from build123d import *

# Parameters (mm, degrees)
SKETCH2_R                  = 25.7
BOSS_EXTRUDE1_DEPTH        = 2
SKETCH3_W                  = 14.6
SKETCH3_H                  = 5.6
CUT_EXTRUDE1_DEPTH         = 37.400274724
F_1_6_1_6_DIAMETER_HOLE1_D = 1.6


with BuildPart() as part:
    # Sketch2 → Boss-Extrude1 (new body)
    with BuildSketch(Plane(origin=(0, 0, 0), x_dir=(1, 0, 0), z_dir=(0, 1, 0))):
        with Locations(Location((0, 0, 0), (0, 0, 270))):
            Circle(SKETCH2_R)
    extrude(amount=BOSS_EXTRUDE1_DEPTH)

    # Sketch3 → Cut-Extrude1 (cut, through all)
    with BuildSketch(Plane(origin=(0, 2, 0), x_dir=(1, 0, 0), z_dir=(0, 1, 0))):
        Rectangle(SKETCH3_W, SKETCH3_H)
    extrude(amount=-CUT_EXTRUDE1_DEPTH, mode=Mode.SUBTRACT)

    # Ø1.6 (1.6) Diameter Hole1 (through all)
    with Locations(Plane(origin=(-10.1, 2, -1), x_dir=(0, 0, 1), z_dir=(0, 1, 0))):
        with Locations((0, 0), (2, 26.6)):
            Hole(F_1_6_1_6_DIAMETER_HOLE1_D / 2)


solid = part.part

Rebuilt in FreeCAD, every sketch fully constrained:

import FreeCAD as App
import Part
import Sketcher
from FreeCAD import Vector

doc = App.newDocument("Part")
body = doc.addObject("PartDesign::Body", "Body")

sketch1 = body.newObject("Sketcher::SketchObject", "Sketch")
sketch1.AttachmentSupport = (doc.getObject("XZ_Plane"), [""])
sketch1.MapMode = "FlatFace"
sketch1.addGeometry(Part.Circle(Vector(0, 0, 0), Vector(0, 0, 1), 26), False)
sketch1.addConstraint(Sketcher.Constraint("Coincident", 0, 3, -1, 1))
sketch1.addConstraint(Sketcher.Constraint("Diameter", 0, 51.4))
pad1 = body.newObject("PartDesign::Pad", "Pad")
pad1.Profile = sketch1
pad1.Length = 2
pad1.Reversed = True

sketch2 = body.newObject("Sketcher::SketchObject", "Sketch001")
sketch2.AttachmentSupport = (doc.getObject("XZ_Plane"), [""])
sketch2.MapMode = "FlatFace"
sketch2.AttachmentOffset = App.Placement(Vector(0, 0, -2), App.Rotation())
sketch2.addGeometry(Part.LineSegment(Vector(-7, -3, 0), Vector(-7, 3, 0)), False)
sketch2.addGeometry(Part.LineSegment(Vector(-7, 3, 0), Vector(7, 3, 0)), False)
sketch2.addGeometry(Part.LineSegment(Vector(7, 3, 0), Vector(7, -3, 0)), False)
sketch2.addGeometry(Part.LineSegment(Vector(7, -3, 0), Vector(-7, -3, 0)), False)
sketch2.addConstraint(Sketcher.Constraint("Coincident", 0, 2, 1, 1))
sketch2.addConstraint(Sketcher.Constraint("Coincident", 1, 2, 2, 1))
sketch2.addConstraint(Sketcher.Constraint("Coincident", 2, 2, 3, 1))
sketch2.addConstraint(Sketcher.Constraint("Coincident", 3, 2, 0, 1))
sketch2.addConstraint(Sketcher.Constraint("Vertical", 0))
sketch2.addConstraint(Sketcher.Constraint("Horizontal", 1))
sketch2.addConstraint(Sketcher.Constraint("Vertical", 2))
sketch2.addConstraint(Sketcher.Constraint("Horizontal", 3))
sketch2.addConstraint(Sketcher.Constraint("Symmetric", 0, 2, 2, 2, -1, 1))
sketch2.addConstraint(Sketcher.Constraint("DistanceX", 1, 1, 1, 2, 14.6))
sketch2.addConstraint(Sketcher.Constraint("DistanceY", 0, 1, 0, 2, 5.6))
pocket1 = body.newObject("PartDesign::Pocket", "Pocket")
pocket1.Profile = sketch2
pocket1.Type = "ThroughAll"
pocket1.Reversed = True

sketch3 = body.newObject("Sketcher::SketchObject", "Sketch002")
sketch3.AttachmentSupport = (doc.getObject("XZ_Plane"), [""])
sketch3.MapMode = "FlatFace"
sketch3.AttachmentOffset = App.Placement(Vector(0, 0, -2), App.Rotation())
sketch3.addGeometry(Part.Circle(Vector(-10.1, -1, 0), Vector(0, 0, 1), 0.8), False)
sketch3.addGeometry(Part.Circle(Vector(16.5, 1, 0), Vector(0, 0, 1), 0.8), False)
sketch3.addConstraint(Sketcher.Constraint("Equal", 0, 1))
sketch3.addConstraint(Sketcher.Constraint("Diameter", 0, 1.6))
sketch3.addConstraint(Sketcher.Constraint("DistanceY", 0, 3, -1, 1, 1.0))
sketch3.addConstraint(Sketcher.Constraint("DistanceY", -1, 1, 1, 3, 1.0))
sketch3.addConstraint(Sketcher.Constraint("DistanceX", 0, 3, -1, 1, 10.1))
sketch3.addConstraint(Sketcher.Constraint("DistanceX", -1, 1, 1, 3, 16.5))
doc.recompute()
hole = body.newObject("PartDesign::Hole", "Hole")
hole.Profile = sketch3
hole.ThreadType = "None"
hole.Diameter = 1.6
hole.DepthType = "ThroughAll"
hole.Reversed = True

doc.recompute()
